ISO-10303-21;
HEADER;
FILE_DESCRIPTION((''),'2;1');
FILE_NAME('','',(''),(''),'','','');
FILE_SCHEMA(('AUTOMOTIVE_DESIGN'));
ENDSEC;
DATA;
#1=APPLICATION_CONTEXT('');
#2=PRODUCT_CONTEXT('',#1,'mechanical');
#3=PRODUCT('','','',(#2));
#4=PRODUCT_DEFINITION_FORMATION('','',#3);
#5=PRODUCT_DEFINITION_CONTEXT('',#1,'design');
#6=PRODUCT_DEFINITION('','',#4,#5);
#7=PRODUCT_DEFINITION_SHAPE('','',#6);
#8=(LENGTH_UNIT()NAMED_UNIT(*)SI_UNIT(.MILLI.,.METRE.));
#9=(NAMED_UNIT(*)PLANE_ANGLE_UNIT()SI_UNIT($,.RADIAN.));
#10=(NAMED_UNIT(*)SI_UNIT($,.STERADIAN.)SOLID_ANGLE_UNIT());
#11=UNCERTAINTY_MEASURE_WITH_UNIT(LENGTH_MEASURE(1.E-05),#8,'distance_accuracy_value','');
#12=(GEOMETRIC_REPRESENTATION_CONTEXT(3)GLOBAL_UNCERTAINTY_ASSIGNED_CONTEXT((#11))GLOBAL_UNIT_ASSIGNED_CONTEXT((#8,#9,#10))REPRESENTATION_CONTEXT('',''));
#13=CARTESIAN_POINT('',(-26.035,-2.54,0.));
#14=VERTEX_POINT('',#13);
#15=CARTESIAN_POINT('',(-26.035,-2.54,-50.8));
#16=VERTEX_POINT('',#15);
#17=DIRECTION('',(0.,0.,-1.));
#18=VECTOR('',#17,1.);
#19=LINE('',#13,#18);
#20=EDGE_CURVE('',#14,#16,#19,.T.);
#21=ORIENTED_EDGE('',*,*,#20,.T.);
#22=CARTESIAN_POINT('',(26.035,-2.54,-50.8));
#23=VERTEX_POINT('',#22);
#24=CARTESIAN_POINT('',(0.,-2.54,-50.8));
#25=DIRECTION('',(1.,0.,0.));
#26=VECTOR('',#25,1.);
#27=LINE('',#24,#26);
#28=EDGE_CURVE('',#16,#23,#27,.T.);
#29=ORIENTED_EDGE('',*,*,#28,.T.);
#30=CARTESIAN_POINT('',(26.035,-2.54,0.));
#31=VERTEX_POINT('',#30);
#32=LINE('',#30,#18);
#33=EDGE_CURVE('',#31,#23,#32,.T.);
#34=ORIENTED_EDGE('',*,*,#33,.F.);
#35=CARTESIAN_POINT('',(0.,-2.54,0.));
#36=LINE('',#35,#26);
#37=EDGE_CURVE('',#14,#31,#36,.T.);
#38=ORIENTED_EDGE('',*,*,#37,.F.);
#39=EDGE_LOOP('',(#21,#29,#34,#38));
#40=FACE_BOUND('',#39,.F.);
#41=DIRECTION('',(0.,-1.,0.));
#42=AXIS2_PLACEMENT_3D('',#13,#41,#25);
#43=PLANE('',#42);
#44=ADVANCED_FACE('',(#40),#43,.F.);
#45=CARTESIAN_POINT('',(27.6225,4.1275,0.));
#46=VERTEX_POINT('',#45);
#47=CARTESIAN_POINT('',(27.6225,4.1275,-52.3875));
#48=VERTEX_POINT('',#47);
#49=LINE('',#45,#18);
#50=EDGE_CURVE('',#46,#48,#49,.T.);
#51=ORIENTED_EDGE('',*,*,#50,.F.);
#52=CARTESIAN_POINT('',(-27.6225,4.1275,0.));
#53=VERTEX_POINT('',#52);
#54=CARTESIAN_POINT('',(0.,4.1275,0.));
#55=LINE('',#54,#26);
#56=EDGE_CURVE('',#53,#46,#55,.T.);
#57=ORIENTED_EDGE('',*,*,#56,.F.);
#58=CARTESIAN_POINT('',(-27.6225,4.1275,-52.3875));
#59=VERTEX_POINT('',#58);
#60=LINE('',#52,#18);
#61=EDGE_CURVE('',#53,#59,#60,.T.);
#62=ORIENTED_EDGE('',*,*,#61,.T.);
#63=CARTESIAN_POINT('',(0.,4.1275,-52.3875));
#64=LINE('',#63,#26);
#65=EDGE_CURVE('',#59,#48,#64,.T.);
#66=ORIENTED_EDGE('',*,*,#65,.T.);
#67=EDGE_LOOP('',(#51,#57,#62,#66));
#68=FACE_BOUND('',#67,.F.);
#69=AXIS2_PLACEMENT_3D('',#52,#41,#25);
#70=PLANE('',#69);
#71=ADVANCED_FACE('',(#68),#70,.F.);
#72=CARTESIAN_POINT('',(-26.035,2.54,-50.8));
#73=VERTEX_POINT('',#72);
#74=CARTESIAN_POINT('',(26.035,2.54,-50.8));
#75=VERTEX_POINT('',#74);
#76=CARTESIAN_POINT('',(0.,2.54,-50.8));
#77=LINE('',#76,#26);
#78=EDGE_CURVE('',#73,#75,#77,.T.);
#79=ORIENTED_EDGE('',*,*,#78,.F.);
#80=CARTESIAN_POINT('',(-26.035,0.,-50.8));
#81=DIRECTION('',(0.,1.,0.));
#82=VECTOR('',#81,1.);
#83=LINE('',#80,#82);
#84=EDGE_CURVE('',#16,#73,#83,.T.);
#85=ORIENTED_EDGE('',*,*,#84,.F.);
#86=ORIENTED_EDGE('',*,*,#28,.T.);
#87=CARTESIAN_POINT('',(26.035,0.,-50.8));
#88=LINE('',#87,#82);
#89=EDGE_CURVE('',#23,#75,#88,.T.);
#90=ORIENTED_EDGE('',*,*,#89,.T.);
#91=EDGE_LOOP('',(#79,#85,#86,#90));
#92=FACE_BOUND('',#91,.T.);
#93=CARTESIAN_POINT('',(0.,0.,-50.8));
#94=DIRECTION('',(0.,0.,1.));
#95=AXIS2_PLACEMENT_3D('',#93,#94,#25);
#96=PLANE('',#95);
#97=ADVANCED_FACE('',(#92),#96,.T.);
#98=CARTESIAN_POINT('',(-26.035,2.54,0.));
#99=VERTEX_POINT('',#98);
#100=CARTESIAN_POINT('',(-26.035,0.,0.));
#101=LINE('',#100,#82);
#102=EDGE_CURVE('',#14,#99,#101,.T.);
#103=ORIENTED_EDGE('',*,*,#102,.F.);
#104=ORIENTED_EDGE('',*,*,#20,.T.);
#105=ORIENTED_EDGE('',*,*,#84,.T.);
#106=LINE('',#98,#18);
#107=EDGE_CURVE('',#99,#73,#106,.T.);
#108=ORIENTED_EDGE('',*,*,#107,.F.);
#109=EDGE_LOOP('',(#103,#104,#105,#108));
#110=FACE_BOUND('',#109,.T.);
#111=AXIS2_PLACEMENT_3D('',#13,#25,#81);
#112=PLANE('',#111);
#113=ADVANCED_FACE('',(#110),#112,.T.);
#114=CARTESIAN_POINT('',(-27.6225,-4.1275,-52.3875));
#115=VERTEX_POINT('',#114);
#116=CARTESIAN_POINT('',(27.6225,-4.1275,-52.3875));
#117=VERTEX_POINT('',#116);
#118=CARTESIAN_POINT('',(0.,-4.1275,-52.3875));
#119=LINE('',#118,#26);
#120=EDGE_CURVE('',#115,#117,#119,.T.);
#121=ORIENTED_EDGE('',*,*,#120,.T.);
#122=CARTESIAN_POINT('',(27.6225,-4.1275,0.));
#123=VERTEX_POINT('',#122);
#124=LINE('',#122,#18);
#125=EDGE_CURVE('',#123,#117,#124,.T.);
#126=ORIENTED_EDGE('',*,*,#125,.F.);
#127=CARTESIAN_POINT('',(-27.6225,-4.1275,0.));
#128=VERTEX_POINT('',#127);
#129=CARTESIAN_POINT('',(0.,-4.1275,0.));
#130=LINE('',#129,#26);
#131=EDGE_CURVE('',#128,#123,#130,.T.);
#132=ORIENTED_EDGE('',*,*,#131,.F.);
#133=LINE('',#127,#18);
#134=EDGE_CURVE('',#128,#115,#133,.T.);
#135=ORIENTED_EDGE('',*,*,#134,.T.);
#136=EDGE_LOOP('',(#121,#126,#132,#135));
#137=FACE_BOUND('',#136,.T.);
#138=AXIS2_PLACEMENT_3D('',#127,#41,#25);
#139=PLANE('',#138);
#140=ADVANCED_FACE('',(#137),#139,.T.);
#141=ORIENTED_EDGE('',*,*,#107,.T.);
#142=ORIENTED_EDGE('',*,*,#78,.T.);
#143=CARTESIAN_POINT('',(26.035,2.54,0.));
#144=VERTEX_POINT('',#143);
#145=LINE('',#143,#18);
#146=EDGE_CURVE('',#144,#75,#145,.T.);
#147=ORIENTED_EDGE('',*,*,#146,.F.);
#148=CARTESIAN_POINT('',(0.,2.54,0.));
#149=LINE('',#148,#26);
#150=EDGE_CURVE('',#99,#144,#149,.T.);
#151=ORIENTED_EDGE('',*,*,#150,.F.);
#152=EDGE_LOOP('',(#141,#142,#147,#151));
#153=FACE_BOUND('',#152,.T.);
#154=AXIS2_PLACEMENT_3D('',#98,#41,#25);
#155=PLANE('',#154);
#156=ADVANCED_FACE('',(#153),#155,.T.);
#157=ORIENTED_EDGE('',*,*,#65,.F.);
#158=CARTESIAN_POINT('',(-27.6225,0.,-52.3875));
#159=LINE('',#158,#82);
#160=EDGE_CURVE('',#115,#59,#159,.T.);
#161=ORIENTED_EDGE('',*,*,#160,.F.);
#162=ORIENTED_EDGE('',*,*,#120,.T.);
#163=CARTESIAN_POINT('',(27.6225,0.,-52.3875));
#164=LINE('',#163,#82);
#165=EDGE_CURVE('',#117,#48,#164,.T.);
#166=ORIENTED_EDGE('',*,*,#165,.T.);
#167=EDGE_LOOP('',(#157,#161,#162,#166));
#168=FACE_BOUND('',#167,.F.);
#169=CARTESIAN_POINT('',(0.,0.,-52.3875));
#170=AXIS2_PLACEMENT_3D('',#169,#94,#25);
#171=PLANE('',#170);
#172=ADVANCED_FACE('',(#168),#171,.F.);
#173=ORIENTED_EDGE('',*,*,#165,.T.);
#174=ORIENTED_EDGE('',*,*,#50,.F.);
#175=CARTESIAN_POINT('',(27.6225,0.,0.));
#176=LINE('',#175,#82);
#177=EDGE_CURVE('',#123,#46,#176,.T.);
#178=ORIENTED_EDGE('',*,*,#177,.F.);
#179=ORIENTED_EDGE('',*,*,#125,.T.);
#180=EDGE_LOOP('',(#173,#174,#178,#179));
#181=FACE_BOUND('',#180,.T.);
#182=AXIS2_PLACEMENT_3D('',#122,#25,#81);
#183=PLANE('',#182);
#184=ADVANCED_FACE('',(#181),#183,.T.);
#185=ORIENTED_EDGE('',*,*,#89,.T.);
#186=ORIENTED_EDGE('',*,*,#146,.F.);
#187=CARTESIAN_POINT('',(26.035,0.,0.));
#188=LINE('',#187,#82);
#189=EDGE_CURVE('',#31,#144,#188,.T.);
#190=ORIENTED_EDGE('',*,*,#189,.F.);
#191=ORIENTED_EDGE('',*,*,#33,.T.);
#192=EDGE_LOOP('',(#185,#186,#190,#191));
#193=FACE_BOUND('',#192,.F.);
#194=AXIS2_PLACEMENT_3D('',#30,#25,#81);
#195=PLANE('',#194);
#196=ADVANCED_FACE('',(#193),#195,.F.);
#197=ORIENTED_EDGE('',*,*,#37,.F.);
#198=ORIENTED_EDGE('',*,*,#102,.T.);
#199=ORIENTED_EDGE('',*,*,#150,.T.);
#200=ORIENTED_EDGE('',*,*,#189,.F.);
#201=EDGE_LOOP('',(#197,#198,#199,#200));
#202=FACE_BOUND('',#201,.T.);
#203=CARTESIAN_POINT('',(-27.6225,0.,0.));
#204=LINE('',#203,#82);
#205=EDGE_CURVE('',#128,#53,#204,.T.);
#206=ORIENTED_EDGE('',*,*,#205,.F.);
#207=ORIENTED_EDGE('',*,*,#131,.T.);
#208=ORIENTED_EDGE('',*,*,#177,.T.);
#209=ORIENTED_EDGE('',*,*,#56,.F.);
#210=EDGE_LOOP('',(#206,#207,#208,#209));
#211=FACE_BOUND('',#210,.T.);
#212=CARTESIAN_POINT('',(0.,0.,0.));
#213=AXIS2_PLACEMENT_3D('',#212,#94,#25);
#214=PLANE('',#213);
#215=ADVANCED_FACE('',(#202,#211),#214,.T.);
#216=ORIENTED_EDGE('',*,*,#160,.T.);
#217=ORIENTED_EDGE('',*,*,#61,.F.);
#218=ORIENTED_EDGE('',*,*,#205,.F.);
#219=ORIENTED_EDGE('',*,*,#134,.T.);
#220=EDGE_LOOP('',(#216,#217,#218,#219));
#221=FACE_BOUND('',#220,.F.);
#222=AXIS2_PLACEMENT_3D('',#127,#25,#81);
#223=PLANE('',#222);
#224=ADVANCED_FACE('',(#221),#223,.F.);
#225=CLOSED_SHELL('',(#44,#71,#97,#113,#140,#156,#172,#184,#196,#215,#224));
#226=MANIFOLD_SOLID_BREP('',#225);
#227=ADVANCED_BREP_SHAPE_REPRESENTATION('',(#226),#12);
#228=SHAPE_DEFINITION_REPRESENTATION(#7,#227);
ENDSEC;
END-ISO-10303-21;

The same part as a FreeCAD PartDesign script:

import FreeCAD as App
import Part
import Sketcher
from FreeCAD import Vector
Q = App.Units.Quantity


def add_polygon(sketch, points):
    """Adds a closed chain of lines whose ends are joined by coincident constraints."""
    first, n = sketch.GeometryCount, len(points)
    for a, b in zip(points, points[1:] + points[:1]):
        sketch.addGeometry(Part.LineSegment(App.Vector(*a, 0), App.Vector(*b, 0)), False)
    for i in range(n):
        sketch.addConstraint(Sketcher.Constraint("Coincident", first + i, 2, first + (i + 1) % n, 1))

doc = App.newDocument("Part")
body = doc.addObject("PartDesign::Body", "Body")

sketch1 = doc.addObject("Sketcher::SketchObject", "Sketch")
body.addObject(sketch1)
sketch1.AttachmentSupport = (doc.XY_Plane, [""])
sketch1.MapMode = "FlatFace"
add_polygon(sketch1, [(-28, 4), (-28, -4), (28, -4), (28, 4)])
sketch1.addConstraint([
    Sketcher.Constraint("Vertical", 0),
    Sketcher.Constraint("Horizontal", 1),
    Sketcher.Constraint("Vertical", 2),
    Sketcher.Constraint("Horizontal", 3),
    Sketcher.Constraint("Symmetric", 0, 2, 2, 2, -1, 1),
    Sketcher.Constraint("DistanceX", 1, 1, 1, 2, Q("2.175 in")),
    Sketcher.Constraint("DistanceY", 0, 2, 0, 1, Q("0.325 in")),
])
pad1 = doc.addObject("PartDesign::Pad", "Pad")
body.addObject(pad1)
pad1.Profile = sketch1
pad1.Length = Q("2.0625 in")
pad1.Reversed = True

sketch2 = doc.addObject("Sketcher::SketchObject", "Sketch001")
body.addObject(sketch2)
sketch2.AttachmentSupport = (doc.XY_Plane, [""])
sketch2.MapMode = "FlatFace"
add_polygon(sketch2, [(-26, 3), (-26, -3), (26, -3), (26, 3)])
sketch2.addConstraint([
    Sketcher.Constraint("Vertical", 0),
    Sketcher.Constraint("Horizontal", 1),
    Sketcher.Constraint("Vertical", 2),
    Sketcher.Constraint("Horizontal", 3),
    Sketcher.Constraint("Symmetric", 0, 2, 2, 2, -1, 1),
    Sketcher.Constraint("DistanceY", 0, 2, 0, 1, Q("0.2 in")),
    Sketcher.Constraint("DistanceX", 1, 1, 1, 2, Q("2.05 in")),
])
pocket1 = doc.addObject("PartDesign::Pocket", "Pocket")
body.addObject(pocket1)
pocket1.Profile = sketch2
pocket1.Length = Q("2 in")

doc.recompute()
